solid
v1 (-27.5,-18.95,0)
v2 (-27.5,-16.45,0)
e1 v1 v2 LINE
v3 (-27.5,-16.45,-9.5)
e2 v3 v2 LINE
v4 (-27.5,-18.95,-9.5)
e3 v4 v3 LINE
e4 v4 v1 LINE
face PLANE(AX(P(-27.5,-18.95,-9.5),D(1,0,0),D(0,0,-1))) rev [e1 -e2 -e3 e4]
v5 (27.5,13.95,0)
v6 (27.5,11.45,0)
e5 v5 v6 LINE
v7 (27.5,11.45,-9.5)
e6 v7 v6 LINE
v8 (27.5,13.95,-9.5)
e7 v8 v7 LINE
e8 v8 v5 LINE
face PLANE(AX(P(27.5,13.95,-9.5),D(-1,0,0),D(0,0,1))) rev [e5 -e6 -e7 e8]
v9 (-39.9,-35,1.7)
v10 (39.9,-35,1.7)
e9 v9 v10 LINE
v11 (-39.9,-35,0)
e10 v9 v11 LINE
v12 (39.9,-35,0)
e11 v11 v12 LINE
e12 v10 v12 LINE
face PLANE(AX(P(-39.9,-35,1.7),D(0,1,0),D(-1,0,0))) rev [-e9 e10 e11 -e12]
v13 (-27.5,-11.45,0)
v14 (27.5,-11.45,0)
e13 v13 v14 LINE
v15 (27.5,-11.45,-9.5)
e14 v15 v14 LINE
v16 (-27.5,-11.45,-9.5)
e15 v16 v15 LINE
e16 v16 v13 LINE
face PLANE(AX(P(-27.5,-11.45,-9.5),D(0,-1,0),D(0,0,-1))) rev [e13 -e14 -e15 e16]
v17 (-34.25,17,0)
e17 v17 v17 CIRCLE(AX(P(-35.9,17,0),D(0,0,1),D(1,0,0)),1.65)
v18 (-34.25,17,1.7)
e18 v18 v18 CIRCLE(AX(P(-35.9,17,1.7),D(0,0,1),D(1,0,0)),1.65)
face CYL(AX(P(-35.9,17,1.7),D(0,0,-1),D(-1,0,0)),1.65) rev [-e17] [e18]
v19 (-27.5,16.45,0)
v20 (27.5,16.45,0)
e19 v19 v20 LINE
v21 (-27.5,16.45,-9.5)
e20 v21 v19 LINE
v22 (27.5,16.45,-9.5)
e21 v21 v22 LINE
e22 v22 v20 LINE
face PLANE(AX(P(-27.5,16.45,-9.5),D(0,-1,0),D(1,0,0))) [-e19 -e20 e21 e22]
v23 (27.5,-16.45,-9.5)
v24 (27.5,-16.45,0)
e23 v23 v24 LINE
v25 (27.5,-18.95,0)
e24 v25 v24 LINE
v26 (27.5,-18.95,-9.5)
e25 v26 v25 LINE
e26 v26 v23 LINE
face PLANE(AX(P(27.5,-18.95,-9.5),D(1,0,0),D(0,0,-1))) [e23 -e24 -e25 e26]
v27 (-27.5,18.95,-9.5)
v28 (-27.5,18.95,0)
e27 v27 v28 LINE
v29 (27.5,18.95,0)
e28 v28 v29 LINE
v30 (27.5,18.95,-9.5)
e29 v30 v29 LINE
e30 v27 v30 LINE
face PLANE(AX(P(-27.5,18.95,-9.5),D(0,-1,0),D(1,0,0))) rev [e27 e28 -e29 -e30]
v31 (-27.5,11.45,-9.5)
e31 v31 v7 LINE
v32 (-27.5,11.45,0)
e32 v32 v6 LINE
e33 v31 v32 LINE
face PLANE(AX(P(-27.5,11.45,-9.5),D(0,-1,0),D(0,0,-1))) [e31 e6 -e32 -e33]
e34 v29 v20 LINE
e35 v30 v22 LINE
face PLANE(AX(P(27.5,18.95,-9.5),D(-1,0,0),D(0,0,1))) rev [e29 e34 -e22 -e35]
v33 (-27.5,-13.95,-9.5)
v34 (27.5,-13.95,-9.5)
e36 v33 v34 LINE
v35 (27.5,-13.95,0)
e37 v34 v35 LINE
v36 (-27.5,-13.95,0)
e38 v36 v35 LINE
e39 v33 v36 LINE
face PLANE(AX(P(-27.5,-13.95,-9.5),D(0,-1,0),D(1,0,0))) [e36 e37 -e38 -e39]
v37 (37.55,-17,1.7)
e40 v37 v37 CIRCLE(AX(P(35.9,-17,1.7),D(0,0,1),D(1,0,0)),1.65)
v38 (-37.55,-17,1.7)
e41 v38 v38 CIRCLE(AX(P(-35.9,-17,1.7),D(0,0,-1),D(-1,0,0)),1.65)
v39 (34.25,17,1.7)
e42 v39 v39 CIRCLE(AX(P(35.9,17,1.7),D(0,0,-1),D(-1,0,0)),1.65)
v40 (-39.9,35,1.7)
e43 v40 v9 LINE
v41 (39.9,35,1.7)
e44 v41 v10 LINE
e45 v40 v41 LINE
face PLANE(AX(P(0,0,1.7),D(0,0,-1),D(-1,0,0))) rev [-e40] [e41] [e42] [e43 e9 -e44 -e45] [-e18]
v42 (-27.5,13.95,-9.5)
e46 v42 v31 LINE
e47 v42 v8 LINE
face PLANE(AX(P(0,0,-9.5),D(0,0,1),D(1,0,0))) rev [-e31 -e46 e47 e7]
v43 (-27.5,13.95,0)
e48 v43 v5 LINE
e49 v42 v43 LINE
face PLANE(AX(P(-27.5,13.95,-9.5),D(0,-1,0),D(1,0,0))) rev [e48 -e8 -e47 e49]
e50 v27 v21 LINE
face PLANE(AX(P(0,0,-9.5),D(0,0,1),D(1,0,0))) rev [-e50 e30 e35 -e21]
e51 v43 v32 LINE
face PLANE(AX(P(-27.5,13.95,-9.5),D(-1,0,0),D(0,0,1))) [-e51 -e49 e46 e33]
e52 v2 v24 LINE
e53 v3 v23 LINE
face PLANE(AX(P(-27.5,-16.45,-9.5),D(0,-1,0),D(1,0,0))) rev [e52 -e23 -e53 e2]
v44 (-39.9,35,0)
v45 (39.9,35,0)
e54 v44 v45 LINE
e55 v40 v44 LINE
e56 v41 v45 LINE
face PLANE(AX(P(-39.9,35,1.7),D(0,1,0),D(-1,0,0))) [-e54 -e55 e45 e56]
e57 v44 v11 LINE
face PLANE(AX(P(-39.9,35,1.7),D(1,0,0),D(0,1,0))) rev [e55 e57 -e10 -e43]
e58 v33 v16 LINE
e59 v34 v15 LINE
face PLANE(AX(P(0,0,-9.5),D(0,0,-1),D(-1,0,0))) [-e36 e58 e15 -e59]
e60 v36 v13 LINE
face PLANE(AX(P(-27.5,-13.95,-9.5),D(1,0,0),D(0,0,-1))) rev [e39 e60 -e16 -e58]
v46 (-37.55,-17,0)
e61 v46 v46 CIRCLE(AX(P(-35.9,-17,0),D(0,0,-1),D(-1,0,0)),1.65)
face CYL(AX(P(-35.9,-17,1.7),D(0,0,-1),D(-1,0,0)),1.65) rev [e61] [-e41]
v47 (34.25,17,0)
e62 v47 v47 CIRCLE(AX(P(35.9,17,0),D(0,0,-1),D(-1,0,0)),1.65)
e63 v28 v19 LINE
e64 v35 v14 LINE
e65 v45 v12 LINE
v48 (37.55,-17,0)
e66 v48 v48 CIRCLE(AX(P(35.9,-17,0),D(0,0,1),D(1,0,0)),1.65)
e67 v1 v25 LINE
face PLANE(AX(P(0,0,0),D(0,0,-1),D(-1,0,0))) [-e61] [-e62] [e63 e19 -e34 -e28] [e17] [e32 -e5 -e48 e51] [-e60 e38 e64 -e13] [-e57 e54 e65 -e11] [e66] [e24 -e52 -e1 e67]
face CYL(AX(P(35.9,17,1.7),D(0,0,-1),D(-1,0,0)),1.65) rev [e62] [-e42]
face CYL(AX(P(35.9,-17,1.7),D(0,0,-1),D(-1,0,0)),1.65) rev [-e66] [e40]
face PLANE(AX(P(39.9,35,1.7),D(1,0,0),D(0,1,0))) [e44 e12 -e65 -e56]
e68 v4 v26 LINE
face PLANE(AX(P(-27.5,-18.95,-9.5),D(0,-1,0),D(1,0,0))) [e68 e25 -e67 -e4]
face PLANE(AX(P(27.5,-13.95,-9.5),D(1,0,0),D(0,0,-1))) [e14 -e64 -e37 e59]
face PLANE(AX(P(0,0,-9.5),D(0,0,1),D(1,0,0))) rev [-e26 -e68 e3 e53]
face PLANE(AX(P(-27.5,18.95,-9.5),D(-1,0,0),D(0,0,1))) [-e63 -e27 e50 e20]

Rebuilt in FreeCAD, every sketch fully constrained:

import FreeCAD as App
import Part
import Sketcher
Q = App.Units.Quantity

doc = App.newDocument("Part")
body = doc.addObject("PartDesign::Body", "Body")

sketch1 = body.newObject("Sketcher::SketchObject", "Sketch")
sketch1.AttachmentSupport = (doc.getObject("XY_Plane"), [""])
sketch1.MapMode = "FlatFace"
sketch1.addGeometry(Part.LineSegment(App.Vector(-40, 35, 0), App.Vector(-40, -35, 0)), False)
sketch1.addGeometry(Part.LineSegment(App.Vector(-40, -35, 0), App.Vector(40, -35, 0)), False)
sketch1.addGeometry(Part.LineSegment(App.Vector(40, -35, 0), App.Vector(40, 35, 0)), False)
sketch1.addGeometry(Part.LineSegment(App.Vector(40, 35, 0), App.Vector(-40, 35, 0)), False)
sketch1.addConstraint(Sketcher.Constraint("Coincident", 0, 2, 1, 1))
sketch1.addConstraint(Sketcher.Constraint("Coincident", 1, 2, 2, 1))
sketch1.addConstraint(Sketcher.Constraint("Coincident", 2, 2, 3, 1))
sketch1.addConstraint(Sketcher.Constraint("Coincident", 3, 2, 0, 1))
sketch1.addConstraint(Sketcher.Constraint("Vertical", 0))
sketch1.addConstraint(Sketcher.Constraint("Horizontal", 1))
sketch1.addConstraint(Sketcher.Constraint("Vertical", 2))
sketch1.addConstraint(Sketcher.Constraint("Horizontal", 3))
sketch1.addConstraint(Sketcher.Constraint("Symmetric", 0, 2, 2, 2, -1, 1))
sketch1.addConstraint(Sketcher.Constraint("DistanceY", 0, 2, 0, 1, Q("70 mm")))
sketch1.addConstraint(Sketcher.Constraint("DistanceX", 1, 1, 1, 2, Q("79.8 mm")))
pad1 = body.newObject("PartDesign::Pad", "Pad")
pad1.Profile = sketch1
pad1.Length = 1.7

sketch2 = body.newObject("Sketcher::SketchObject", "Sketch001")
sketch2.AttachmentSupport = (doc.getObject("XY_Plane"), [""])
sketch2.MapMode = "FlatFace"
sketch2.addGeometry(Part.LineSegment(App.Vector(-27.5, -11.4, 0), App.Vector(-27.5, -13.9, 0)), False)
sketch2.addGeometry(Part.LineSegment(App.Vector(-27.5, -13.9, 0), App.Vector(27.5, -13.9, 0)), False)
sketch2.addGeometry(Part.LineSegment(App.Vector(27.5, -13.9, 0), App.Vector(27.5, -11.4, 0)), False)
sketch2.addGeometry(Part.LineSegment(App.Vector(27.5, -11.4, 0), App.Vector(-27.5, -11.4, 0)), False)
sketch2.addGeometry(Part.LineSegment(App.Vector(-27.5, 13.9, 0), App.Vector(-27.5, 11.4, 0)), False)
sketch2.addGeometry(Part.LineSegment(App.Vector(-27.5, 11.4, 0), App.Vector(27.5, 11.4, 0)), False)
sketch2.addGeometry(Part.LineSegment(App.Vector(27.5, 11.4, 0), App.Vector(27.5, 13.9, 0)), False)
sketch2.addGeometry(Part.LineSegment(App.Vector(27.5, 13.9, 0), App.Vector(-27.5, 13.9, 0)), False)
sketch2.addGeometry(Part.LineSegment(App.Vector(-27.5, -16.4, 0), App.Vector(-27.5, -18.9, 0)), False)
sketch2.addGeometry(Part.LineSegment(App.Vector(-27.5, -18.9, 0), App.Vector(27.5, -18.9, 0)), False)
sketch2.addGeometry(Part.LineSegment(App.Vector(27.5, -18.9, 0), App.Vector(27.5, -16.4, 0)), False)
sketch2.addGeometry(Part.LineSegment(App.Vector(27.5, -16.4, 0), App.Vector(-27.5, -16.4, 0)), False)
sketch2.addGeometry(Part.LineSegment(App.Vector(-27.5, 18.9, 0), App.Vector(-27.5, 16.4, 0)), False)
sketch2.addGeometry(Part.LineSegment(App.Vector(-27.5, 16.4, 0), App.Vector(27.5, 16.4, 0)), False)
sketch2.addGeometry(Part.LineSegment(App.Vector(27.5, 16.4, 0), App.Vector(27.5, 18.9, 0)), False)
sketch2.addGeometry(Part.LineSegment(App.Vector(27.5, 18.9, 0), App.Vector(-27.5, 18.9, 0)), False)
sketch2.addConstraint(Sketcher.Constraint("Coincident", 0, 2, 1, 1))
sketch2.addConstraint(Sketcher.Constraint("Coincident", 1, 2, 2, 1))
sketch2.addConstraint(Sketcher.Constraint("Coincident", 2, 2, 3, 1))
sketch2.addConstraint(Sketcher.Constraint("Coincident", 3, 2, 0, 1))
sketch2.addConstraint(Sketcher.Constraint("Coincident", 4, 2, 5, 1))
sketch2.addConstraint(Sketcher.Constraint("Coincident", 5, 2, 6, 1))
sketch2.addConstraint(Sketcher.Constraint("Coincident", 6, 2, 7, 1))
sketch2.addConstraint(Sketcher.Constraint("Coincident", 7, 2, 4, 1))
sketch2.addConstraint(Sketcher.Constraint("Coincident", 8, 2, 9, 1))
sketch2.addConstraint(Sketcher.Constraint("Coincident", 9, 2, 10, 1))
sketch2.addConstraint(Sketcher.Constraint("Coincident", 10, 2, 11, 1))
sketch2.addConstraint(Sketcher.Constraint("Coincident", 11, 2, 8, 1))
sketch2.addConstraint(Sketcher.Constraint("Coincident", 12, 2, 13, 1))
sketch2.addConstraint(Sketcher.Constraint("Coincident", 13, 2, 14, 1))
sketch2.addConstraint(Sketcher.Constraint("Coincident", 14, 2, 15, 1))
sketch2.addConstraint(Sketcher.Constraint("Coincident", 15, 2, 12, 1))
sketch2.addConstraint(Sketcher.Constraint("Vertical", 0))
sketch2.addConstraint(Sketcher.Constraint("Horizontal", 1))
sketch2.addConstraint(Sketcher.Constraint("Vertical", 2))
sketch2.addConstraint(Sketcher.Constraint("Horizontal", 3))
sketch2.addConstraint(Sketcher.Constraint("Vertical", 4))
sketch2.addConstraint(Sketcher.Constraint("Horizontal", 5))
sketch2.addConstraint(Sketcher.Constraint("Vertical", 6))
sketch2.addConstraint(Sketcher.Constraint("Horizontal", 7))
sketch2.addConstraint(Sketcher.Constraint("Vertical", 8))
sketch2.addConstraint(Sketcher.Constraint("Horizontal", 9))
sketch2.addConstraint(Sketcher.Constraint("Vertical", 10))
sketch2.addConstraint(Sketcher.Constraint("Horizontal", 11))
sketch2.addConstraint(Sketcher.Constraint("Vertical", 12))
sketch2.addConstraint(Sketcher.Constraint("Horizontal", 13))
sketch2.addConstraint(Sketcher.Constraint("Vertical", 14))
sketch2.addConstraint(Sketcher.Constraint("Horizontal", 15))
sketch2.addConstraint(Sketcher.Constraint("Symmetric", 2, 2, 4, 2, -1, 1))
sketch2.addConstraint(Sketcher.Constraint("Symmetric", 0, 2, 6, 2, -1, 1))
sketch2.addConstraint(Sketcher.Constraint("Symmetric", 10, 2, 12, 2, -1, 1))
sketch2.addConstraint(Sketcher.Constraint("Symmetric", 8, 2, 14, 2, -1, 1))
sketch2.addConstraint(Sketcher.Constraint("Vertical", 3, 2, 4, 2))
sketch2.addConstraint(Sketcher.Constraint("Vertical", 7, 2, 8, 2))
sketch2.addConstraint(Sketcher.Constraint("Vertical", 6, 2, 9, 2))
sketch2.addConstraint(Sketcher.Constraint("Equal", 6, 8))
sketch2.addConstraint(Sketcher.Constraint("DistanceX", 1, 1, 1, 2, Q("55 mm")))
sketch2.addConstraint(Sketcher.Constraint("DistanceY", 0, 2, 0, 1, Q("2.5 mm")))
sketch2.addConstraint(Sketcher.Constraint("DistanceY", 8, 2, 0, 2, Q("5 mm")))
sketch2.addConstraint(Sketcher.Constraint("DistanceY", 3, 2, 4, 2, Q("22.9 mm")))
pad2 = body.newObject("PartDesign::Pad", "Pad001")
pad2.Profile = sketch2
pad2.Length = 9.5
pad2.Reversed = True

sketch3 = body.newObject("Sketcher::SketchObject", "Sketch002")
sketch3.AttachmentSupport = (doc.getObject("XY_Plane"), [""])
sketch3.MapMode = "FlatFace"
sketch3.addGeometry(Part.Circle(App.Vector(-35.9, 17, 0), App.Vector(0, 0, 1), 1.6), False)
sketch3.addGeometry(Part.Circle(App.Vector(35.9, 17, 0), App.Vector(0, 0, 1), 1.6), False)
sketch3.addGeometry(Part.Circle(App.Vector(35.9, -17, 0), App.Vector(0, 0, 1), 1.6), False)
sketch3.addGeometry(Part.Circle(App.Vector(-35.9, -17, 0), App.Vector(0, 0, 1), 1.6), False)
sketch3.addConstraint(Sketcher.Constraint("Equal", 0, 1))
sketch3.addConstraint(Sketcher.Constraint("Equal", 1, 2))
sketch3.addConstraint(Sketcher.Constraint("Equal", 2, 3))
sketch3.addConstraint(Sketcher.Constraint("Symmetric", 0, 3, 2, 3, -1, 1))
sketch3.addConstraint(Sketcher.Constraint("Symmetric", 1, 3, 3, 3, -1, 1))
sketch3.addConstraint(Sketcher.Constraint("Symmetric", 0, 3, 1, 3, -2))
sketch3.addConstraint(Sketcher.Constraint("Diameter", 0, Q("3.3 mm")))
sketch3.addConstraint(Sketcher.Constraint("DistanceY", -1, 1, 0, 3, Q("17 mm")))
sketch3.addConstraint(Sketcher.Constraint("DistanceX", 0, 3, -1, 1, Q("35.9 mm")))
pocket1 = body.newObject("PartDesign::Pocket", "Pocket")
pocket1.Profile = sketch3
pocket1.Type = "ThroughAll"
pocket1.Reversed = True

doc.recompute()
